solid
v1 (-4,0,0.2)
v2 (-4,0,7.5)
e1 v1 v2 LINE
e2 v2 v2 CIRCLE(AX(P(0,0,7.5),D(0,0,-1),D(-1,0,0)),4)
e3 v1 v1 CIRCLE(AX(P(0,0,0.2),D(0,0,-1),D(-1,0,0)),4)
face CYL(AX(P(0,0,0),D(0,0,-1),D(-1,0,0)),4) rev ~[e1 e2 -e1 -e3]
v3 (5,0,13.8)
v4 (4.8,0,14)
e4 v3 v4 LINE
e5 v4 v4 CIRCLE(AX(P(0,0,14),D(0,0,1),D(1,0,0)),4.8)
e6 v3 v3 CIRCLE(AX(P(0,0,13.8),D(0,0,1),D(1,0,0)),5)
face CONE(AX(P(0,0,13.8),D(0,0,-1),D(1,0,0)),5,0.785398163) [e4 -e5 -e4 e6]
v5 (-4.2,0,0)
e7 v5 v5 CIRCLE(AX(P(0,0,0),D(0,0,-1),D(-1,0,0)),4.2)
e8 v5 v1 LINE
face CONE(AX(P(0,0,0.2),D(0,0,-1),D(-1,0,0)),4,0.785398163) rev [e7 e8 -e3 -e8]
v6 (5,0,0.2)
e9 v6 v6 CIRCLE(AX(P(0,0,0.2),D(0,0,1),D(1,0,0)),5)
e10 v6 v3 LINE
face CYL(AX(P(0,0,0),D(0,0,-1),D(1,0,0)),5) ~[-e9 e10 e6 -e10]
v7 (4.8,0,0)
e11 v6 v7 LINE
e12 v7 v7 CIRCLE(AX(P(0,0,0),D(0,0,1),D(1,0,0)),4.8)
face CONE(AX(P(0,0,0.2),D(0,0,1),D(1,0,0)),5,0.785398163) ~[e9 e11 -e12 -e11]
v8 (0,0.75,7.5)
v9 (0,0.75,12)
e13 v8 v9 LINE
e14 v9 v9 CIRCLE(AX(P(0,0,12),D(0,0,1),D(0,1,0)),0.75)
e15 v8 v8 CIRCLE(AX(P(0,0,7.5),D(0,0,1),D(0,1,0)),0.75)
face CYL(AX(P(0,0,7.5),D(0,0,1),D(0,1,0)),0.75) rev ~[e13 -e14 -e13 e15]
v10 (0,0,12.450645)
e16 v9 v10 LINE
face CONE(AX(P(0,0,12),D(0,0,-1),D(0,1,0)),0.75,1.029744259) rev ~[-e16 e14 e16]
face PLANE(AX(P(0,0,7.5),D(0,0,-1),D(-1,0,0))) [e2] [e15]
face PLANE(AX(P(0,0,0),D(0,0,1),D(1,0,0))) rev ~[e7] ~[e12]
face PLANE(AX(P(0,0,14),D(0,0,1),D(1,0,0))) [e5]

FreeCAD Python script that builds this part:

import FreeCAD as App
import Part
import Sketcher
from FreeCAD import Vector


def edges_at(feature, points):
    """Names of the edges that pass closest to the given points."""
    edges = feature.Shape.Edges
    near = lambda p: min(range(len(edges)), key=lambda i: edges[i].distToShape(Part.Vertex(*p))[0])
    return sorted({f"Edge{near(p) + 1}" for p in points})

doc = App.newDocument("Part")
body = doc.addObject("PartDesign::Body", "Body")

sketch1 = body.newObject("Sketcher::SketchObject", "Sketch")
sketch1.AttachmentSupport = (doc.getObject("XY_Plane"), [""])
sketch1.MapMode = "FlatFace"
sketch1.addGeometry(Part.Circle(Vector(0, 0, 0), Vector(0, 0, 1), 5), False)
sketch1.addConstraint([
    Sketcher.Constraint("Coincident", 0, 3, -1, 1),
    Sketcher.Constraint("Diameter", 0, 10.0),
])
pad1 = body.newObject("PartDesign::Pad", "Pad")
pad1.Profile = sketch1
pad1.Length = 14

sketch2 = body.newObject("Sketcher::SketchObject", "Sketch001")
sketch2.AttachmentSupport = (doc.getObject("XY_Plane"), [""])
sketch2.MapMode = "FlatFace"
sketch2.addGeometry(Part.Circle(Vector(0, 0, 0), Vector(0, 0, 1), 4), False)
sketch2.addConstraint([
    Sketcher.Constraint("Coincident", 0, 3, -1, 1),
    Sketcher.Constraint("Diameter", 0, 8.0),
])
pocket1 = body.newObject("PartDesign::Pocket", "Pocket")
pocket1.Profile = sketch2
pocket1.Length = 7.5
pocket1.Reversed = True

sketch3 = body.newObject("Sketcher::SketchObject", "Sketch002")
sketch3.AttachmentSupport = (doc.getObject("XY_Plane"), [""])
sketch3.MapMode = "FlatFace"
sketch3.AttachmentOffset = App.Placement(Vector(0, 0, 7.5), App.Rotation())
sketch3.addGeometry(Part.Circle(Vector(0, 0, 0), Vector(0, 0, 1), 0.8), False)
sketch3.addConstraint([
    Sketcher.Constraint("Coincident", 0, 3, -1, 1),
    Sketcher.Constraint("Diameter", 0, 1.5),
])
doc.recompute()
hole = body.newObject("PartDesign::Hole", "Hole")
hole.Profile = sketch3
hole.ThreadType = "None"
hole.Diameter = 1.5
hole.DepthType = "Dimension"
hole.Depth = 4.5
hole.DrillPoint = "Angled"
hole.DrillPointAngle = 118
hole.Reversed = True
doc.recompute()

chamfer = body.newObject("PartDesign::Chamfer", "Chamfer")
chamfer.Base = (hole, edges_at(hole, [(4, 0, 0), (-5, 0, 0), (-5, 0, 14)]))
chamfer.Size = 0.2

doc.recompute()
